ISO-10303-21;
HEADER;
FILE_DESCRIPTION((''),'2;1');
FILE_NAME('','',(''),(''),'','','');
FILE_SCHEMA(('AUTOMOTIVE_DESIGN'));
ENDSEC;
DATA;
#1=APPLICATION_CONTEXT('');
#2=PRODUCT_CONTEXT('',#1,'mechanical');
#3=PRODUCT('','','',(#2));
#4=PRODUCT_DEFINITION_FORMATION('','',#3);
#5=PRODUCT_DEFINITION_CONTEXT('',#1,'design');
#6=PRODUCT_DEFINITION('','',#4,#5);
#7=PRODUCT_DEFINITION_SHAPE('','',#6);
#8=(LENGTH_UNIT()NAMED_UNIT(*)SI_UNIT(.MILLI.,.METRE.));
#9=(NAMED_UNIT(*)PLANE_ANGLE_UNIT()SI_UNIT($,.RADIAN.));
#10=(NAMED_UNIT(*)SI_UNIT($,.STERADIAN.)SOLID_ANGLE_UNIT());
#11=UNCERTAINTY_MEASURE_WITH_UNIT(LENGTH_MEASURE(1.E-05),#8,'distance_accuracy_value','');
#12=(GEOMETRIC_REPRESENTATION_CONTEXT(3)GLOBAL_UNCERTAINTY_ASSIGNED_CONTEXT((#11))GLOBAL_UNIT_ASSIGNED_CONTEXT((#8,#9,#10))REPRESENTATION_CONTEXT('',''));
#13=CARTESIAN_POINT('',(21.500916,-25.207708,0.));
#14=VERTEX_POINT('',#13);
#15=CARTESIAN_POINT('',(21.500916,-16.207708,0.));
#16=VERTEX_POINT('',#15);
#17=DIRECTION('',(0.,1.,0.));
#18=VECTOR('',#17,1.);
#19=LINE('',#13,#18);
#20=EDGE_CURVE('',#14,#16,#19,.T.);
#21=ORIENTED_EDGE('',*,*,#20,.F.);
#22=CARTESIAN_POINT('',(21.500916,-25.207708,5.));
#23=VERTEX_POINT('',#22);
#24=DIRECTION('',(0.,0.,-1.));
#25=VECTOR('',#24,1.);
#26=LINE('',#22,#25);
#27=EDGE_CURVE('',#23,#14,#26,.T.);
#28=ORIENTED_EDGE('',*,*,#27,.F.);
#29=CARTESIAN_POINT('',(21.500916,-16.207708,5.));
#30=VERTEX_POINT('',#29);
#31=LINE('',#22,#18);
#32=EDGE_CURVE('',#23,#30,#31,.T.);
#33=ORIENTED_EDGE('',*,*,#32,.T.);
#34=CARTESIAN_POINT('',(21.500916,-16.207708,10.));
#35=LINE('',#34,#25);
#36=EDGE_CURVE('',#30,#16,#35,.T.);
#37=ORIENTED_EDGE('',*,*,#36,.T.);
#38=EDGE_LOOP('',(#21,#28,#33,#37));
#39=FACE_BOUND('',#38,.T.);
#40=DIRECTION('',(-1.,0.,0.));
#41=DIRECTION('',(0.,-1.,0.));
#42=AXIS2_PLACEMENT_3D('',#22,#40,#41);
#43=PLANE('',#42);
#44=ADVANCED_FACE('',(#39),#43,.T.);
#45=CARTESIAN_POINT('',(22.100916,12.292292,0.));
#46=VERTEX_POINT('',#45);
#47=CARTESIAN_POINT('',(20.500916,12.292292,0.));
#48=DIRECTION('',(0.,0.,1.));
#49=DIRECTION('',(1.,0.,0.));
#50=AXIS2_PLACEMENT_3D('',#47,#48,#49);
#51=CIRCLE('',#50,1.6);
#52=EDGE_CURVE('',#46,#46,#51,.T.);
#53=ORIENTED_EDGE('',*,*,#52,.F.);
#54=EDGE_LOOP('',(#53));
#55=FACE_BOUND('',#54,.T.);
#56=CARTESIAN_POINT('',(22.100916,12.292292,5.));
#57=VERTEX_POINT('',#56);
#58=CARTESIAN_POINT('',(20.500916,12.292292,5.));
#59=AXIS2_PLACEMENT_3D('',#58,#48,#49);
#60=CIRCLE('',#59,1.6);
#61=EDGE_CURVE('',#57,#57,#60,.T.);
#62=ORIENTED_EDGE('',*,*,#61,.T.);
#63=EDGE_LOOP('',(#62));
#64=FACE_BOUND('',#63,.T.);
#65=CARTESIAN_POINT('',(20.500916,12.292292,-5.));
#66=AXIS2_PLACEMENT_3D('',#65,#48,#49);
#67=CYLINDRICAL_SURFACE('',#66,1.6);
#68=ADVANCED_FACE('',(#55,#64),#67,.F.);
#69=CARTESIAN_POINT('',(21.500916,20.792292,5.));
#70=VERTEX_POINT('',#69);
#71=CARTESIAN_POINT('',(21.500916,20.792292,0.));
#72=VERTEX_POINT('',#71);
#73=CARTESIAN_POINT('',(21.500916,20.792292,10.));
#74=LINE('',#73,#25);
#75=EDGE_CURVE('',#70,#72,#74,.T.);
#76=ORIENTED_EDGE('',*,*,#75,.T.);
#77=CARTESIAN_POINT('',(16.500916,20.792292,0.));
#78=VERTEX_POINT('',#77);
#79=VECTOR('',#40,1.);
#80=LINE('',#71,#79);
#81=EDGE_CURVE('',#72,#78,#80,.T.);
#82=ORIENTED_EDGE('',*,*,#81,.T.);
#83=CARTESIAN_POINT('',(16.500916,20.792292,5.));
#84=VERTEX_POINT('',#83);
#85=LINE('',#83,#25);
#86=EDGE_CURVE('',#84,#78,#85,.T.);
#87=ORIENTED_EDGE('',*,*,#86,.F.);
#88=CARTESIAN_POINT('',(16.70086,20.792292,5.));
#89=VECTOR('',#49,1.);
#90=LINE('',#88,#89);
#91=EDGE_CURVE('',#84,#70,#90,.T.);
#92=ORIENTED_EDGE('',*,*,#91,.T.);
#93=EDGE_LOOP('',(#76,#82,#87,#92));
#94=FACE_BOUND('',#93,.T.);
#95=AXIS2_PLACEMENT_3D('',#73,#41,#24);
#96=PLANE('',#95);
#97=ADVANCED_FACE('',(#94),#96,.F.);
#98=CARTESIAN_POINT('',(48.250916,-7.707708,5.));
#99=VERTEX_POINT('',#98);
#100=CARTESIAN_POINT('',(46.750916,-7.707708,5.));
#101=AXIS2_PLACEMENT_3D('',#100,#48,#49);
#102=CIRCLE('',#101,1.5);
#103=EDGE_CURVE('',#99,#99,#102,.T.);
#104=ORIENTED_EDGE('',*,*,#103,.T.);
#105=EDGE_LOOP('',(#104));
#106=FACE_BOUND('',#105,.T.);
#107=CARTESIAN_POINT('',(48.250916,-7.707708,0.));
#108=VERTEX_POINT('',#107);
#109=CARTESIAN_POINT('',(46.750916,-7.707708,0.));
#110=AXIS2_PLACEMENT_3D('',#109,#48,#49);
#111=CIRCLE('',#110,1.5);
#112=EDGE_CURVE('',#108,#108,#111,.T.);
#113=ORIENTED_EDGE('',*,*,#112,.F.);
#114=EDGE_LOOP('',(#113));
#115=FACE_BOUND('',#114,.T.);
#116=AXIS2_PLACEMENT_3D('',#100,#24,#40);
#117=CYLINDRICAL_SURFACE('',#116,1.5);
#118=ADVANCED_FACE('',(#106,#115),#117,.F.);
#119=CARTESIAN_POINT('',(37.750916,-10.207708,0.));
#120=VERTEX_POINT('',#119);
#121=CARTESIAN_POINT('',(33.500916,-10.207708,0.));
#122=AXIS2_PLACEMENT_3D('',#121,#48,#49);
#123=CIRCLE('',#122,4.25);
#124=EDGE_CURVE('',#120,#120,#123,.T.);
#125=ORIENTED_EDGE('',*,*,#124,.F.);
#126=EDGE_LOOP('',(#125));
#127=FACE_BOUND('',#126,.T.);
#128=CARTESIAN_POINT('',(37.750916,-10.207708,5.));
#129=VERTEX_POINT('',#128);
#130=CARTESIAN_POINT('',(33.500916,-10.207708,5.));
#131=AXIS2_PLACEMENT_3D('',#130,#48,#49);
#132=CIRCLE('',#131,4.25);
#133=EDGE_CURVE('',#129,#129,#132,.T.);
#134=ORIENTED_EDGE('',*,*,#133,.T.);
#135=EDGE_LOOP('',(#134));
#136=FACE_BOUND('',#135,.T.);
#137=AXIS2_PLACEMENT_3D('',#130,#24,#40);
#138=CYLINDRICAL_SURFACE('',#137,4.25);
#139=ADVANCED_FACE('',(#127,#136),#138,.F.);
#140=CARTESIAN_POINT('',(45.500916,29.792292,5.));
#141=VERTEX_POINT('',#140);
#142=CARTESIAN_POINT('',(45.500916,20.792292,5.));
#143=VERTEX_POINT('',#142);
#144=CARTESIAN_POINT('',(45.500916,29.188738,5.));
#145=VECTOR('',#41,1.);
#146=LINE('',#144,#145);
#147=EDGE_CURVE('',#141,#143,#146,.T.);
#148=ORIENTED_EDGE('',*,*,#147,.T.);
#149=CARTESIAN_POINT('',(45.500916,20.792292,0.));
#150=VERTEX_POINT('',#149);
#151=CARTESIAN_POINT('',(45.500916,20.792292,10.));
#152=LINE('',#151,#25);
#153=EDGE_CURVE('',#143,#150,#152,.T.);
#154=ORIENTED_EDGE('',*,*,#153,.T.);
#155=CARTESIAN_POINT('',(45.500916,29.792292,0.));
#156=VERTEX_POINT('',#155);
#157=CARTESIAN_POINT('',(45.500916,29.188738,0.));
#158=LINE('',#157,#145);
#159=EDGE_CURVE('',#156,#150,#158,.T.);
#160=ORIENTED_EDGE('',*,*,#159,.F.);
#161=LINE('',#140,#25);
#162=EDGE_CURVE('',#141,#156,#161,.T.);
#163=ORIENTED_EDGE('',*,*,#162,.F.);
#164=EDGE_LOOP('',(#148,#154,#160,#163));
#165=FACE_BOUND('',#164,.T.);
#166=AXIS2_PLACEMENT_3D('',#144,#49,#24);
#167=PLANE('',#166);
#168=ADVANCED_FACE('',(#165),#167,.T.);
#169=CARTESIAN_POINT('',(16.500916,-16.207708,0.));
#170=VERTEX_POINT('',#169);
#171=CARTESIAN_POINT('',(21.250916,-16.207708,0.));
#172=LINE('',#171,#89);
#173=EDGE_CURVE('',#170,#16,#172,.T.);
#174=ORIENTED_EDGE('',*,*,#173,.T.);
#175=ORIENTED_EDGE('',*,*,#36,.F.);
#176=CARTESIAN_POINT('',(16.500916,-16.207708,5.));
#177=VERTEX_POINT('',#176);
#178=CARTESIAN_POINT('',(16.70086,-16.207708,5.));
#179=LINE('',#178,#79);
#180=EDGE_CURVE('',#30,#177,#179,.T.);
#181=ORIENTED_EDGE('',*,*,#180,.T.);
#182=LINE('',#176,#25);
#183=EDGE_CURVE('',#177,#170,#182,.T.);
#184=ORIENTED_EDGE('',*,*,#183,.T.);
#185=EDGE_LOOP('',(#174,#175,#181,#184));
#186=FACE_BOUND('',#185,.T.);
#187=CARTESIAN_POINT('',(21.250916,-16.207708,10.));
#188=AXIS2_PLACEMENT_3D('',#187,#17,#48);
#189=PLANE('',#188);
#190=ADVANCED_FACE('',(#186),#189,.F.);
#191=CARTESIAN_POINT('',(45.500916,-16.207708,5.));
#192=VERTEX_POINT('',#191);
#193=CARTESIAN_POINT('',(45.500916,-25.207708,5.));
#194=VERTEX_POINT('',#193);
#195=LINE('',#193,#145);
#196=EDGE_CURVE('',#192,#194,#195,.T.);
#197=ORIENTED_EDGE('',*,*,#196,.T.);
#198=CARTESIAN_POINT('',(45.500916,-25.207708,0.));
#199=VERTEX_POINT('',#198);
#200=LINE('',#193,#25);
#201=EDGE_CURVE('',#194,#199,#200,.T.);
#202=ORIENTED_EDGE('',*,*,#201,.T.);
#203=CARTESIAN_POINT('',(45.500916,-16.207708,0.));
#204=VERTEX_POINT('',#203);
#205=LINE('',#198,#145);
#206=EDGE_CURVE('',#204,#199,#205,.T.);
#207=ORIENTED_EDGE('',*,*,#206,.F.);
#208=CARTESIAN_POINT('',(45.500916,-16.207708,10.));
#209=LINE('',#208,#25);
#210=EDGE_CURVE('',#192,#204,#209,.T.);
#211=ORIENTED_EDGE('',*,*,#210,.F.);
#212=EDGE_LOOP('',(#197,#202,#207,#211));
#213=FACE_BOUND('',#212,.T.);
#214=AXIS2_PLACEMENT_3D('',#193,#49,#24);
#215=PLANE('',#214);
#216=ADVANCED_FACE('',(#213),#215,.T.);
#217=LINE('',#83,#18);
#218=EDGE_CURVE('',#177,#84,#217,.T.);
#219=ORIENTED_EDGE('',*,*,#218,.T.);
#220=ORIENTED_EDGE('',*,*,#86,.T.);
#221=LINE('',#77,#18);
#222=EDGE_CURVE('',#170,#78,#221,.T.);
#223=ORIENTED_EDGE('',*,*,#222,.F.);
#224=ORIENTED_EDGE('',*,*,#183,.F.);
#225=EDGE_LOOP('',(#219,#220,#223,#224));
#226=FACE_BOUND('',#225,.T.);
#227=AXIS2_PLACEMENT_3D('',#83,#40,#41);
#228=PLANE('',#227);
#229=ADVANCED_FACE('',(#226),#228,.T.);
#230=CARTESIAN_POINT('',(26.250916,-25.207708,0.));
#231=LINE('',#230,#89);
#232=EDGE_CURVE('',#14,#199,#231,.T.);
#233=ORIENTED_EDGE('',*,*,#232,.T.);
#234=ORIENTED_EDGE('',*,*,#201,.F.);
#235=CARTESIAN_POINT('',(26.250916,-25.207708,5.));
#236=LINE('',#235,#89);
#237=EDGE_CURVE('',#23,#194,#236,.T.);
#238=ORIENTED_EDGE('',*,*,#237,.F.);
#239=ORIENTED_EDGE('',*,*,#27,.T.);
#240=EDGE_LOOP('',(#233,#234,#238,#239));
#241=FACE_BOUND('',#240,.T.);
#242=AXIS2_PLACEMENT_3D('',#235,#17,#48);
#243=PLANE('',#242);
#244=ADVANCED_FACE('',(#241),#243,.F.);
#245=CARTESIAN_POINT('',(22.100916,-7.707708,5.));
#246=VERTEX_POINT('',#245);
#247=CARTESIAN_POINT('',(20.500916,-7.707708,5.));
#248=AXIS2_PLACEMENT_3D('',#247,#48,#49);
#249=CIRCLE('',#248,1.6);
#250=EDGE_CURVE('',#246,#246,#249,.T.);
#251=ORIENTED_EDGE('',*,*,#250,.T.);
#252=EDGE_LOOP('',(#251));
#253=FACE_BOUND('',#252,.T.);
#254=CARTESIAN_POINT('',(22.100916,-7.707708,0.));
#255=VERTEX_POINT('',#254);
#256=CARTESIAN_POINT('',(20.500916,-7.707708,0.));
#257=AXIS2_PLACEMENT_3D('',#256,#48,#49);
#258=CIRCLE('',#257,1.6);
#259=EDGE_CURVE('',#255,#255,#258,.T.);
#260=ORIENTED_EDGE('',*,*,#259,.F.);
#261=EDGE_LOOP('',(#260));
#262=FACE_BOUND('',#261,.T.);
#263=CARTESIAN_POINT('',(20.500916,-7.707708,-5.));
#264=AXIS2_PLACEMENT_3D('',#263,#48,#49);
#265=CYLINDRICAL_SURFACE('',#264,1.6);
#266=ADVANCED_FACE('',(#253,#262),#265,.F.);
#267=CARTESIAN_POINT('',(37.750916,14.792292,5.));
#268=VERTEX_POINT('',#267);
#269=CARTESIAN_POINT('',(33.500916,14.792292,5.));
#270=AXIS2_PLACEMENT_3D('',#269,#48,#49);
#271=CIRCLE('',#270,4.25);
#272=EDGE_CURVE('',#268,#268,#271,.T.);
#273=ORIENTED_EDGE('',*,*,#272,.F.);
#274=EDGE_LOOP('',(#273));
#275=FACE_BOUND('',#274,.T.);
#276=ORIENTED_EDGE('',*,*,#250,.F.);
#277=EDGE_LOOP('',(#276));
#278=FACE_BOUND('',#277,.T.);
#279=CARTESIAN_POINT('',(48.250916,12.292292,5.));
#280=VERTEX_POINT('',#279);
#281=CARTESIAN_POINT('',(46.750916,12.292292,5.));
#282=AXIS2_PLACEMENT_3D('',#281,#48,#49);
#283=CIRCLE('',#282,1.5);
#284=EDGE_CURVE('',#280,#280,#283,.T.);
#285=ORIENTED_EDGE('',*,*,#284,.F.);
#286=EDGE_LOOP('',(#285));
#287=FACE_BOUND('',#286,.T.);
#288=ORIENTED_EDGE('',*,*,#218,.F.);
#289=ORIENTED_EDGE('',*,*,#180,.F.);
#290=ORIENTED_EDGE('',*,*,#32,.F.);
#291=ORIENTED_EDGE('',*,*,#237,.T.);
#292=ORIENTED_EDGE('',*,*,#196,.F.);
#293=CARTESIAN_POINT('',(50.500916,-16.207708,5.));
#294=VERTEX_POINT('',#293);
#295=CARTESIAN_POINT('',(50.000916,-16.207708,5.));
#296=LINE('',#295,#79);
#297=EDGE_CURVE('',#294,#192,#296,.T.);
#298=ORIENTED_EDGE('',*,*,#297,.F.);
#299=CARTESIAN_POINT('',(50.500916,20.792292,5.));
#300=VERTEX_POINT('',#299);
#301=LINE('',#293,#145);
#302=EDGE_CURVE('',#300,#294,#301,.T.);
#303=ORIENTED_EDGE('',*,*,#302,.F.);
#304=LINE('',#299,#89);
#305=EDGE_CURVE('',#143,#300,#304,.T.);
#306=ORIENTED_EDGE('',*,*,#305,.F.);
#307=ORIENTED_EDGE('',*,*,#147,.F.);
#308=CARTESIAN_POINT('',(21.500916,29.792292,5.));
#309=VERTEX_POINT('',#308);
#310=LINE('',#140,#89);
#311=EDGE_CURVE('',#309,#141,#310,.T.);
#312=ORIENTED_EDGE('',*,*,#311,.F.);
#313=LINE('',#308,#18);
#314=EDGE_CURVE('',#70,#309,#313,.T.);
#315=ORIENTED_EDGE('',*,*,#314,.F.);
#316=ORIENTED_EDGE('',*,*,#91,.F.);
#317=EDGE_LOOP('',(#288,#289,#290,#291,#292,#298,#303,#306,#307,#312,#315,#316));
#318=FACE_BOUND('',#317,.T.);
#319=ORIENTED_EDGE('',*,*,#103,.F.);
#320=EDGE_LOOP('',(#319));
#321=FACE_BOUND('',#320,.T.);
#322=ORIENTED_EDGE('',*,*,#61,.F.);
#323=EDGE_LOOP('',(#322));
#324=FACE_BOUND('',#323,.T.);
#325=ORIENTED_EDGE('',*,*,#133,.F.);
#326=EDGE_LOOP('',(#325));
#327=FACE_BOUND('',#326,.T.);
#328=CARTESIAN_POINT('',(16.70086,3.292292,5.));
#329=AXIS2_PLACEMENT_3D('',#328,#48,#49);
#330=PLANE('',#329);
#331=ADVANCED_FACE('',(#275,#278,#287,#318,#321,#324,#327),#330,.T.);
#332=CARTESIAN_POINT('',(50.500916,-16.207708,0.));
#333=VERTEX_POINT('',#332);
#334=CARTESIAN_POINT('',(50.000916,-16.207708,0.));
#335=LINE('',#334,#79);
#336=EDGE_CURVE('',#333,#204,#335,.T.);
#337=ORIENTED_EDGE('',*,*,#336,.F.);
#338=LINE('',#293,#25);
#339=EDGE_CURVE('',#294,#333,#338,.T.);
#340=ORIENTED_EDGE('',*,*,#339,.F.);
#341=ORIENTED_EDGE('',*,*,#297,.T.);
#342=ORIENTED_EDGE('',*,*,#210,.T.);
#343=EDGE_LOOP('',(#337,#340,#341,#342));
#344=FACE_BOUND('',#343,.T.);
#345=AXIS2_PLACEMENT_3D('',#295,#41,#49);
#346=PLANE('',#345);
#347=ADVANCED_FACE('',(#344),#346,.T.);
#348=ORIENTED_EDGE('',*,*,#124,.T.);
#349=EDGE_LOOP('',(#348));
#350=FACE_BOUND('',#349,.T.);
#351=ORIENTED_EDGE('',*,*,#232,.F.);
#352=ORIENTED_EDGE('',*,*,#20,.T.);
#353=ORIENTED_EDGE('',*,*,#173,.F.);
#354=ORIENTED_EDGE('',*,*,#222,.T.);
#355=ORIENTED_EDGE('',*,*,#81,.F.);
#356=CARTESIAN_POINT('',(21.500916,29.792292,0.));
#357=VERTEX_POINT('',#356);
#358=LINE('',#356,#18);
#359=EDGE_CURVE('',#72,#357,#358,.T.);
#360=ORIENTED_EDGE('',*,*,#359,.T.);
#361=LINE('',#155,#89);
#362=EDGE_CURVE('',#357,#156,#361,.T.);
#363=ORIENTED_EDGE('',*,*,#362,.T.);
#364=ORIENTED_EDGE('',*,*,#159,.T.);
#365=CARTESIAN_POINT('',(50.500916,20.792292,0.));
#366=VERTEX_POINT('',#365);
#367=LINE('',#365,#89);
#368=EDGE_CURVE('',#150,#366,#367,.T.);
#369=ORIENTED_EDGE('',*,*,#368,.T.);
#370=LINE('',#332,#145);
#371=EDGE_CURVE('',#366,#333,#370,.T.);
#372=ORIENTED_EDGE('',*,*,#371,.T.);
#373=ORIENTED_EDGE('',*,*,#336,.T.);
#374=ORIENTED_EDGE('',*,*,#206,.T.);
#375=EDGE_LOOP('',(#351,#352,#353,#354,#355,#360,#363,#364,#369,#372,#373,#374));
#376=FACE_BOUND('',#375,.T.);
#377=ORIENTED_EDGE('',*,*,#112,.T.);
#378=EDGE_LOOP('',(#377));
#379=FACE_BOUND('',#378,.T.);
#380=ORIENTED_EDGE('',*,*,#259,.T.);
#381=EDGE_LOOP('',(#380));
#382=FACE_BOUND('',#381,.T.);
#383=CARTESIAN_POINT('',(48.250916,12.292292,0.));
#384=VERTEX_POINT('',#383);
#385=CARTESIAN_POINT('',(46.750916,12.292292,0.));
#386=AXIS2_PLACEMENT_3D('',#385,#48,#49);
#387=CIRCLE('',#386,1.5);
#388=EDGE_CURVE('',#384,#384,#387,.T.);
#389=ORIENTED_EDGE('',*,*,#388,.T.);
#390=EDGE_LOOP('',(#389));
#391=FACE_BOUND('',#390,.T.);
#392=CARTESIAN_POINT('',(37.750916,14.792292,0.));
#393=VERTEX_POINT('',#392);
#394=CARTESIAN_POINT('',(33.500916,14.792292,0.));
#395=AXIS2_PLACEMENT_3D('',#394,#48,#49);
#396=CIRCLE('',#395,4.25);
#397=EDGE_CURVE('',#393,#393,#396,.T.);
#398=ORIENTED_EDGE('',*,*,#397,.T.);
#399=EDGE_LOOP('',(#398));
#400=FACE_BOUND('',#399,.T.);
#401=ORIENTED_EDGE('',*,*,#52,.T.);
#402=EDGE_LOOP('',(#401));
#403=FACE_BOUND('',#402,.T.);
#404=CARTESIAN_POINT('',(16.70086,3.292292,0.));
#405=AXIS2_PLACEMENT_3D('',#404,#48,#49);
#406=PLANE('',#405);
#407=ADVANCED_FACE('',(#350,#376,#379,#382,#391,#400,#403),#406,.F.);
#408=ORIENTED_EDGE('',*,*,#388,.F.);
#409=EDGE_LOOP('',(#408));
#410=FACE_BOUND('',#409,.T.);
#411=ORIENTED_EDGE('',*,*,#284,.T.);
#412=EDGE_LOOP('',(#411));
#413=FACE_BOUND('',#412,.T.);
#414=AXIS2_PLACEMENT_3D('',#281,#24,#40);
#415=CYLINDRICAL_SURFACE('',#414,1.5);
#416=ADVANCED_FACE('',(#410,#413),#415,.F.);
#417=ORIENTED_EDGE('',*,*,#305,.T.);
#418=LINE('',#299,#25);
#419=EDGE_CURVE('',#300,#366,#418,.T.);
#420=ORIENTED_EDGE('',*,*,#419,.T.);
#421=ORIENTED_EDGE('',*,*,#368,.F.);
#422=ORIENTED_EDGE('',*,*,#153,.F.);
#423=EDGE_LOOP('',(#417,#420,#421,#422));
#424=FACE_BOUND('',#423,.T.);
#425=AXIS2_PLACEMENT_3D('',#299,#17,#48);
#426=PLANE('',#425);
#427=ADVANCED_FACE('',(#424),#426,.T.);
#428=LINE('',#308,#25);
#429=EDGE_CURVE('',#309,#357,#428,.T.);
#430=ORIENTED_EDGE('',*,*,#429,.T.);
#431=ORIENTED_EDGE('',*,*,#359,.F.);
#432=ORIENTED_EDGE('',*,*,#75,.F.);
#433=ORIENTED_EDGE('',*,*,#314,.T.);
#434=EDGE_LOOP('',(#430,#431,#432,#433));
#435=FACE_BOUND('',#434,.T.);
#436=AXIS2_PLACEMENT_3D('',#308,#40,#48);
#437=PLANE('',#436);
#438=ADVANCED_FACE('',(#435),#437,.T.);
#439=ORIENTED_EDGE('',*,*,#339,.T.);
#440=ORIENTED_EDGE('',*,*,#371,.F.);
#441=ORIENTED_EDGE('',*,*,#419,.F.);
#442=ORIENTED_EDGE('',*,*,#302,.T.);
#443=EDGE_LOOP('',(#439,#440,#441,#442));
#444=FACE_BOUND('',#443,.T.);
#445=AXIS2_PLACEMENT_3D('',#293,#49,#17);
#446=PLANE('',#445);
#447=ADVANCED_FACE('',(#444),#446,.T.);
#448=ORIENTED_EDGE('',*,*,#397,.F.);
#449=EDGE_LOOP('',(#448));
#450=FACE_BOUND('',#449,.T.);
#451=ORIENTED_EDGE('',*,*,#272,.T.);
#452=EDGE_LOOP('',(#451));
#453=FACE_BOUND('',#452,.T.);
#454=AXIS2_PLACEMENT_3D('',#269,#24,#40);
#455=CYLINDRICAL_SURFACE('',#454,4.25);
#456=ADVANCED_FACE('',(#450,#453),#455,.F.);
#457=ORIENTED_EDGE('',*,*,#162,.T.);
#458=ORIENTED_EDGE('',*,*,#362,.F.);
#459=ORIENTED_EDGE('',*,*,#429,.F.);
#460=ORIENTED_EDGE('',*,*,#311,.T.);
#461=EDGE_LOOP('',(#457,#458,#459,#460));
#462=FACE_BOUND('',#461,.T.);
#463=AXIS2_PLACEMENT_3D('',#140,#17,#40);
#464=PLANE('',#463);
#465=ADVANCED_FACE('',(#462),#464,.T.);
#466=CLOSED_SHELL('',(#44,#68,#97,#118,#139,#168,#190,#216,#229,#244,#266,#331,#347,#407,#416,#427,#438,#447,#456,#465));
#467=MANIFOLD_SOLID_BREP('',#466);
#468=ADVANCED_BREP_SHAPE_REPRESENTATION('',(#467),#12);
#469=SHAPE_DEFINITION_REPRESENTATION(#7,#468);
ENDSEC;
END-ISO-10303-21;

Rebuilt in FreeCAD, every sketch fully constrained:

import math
import FreeCAD as App
import Part
import Sketcher

V = App.Vector
Q = App.Units.Quantity

doc = App.newDocument("Part")
body = doc.addObject("PartDesign::Body", "Body")

sketch1 = body.newObject("Sketcher::SketchObject", "Sketch")
sketch1.AttachmentSupport = (doc.getObject("XY_Plane"), [""])
sketch1.MapMode = "FlatFace"
sketch1.addGeometry(Part.LineSegment(V(45.250916, -25.207708, 0), V(50.000916, -20.457708, 0)), False)
sketch1.addGeometry(Part.LineSegment(V(50.000916, -20.457708, 0), V(50.000916, 24.688738, 0)), False)
sketch1.addGeometry(Part.LineSegment(V(50.000916, 24.688738, 0), V(45.147363, 29.542292, 0)), False)
sketch1.addGeometry(Part.LineSegment(V(45.147363, 29.542292, 0), V(26.354469, 29.542292, 0)), False)
sketch1.addGeometry(Part.LineSegment(V(26.354469, 29.542292, 0), V(21.250916, 24.438738, 0)), False)
sketch1.addGeometry(Part.LineSegment(V(21.250916, 24.438738, 0), V(21.250916, 18.042292, 0)), False)
sketch1.addGeometry(Part.LineSegment(V(21.250916, 18.042292, 0), V(16.70086, 18.042292, 0)), False)
sketch1.addGeometry(Part.ArcOfCircle(Part.Circle(V(16.70086, 3.292292, 0), V(0, 0, 1), 14.75), math.radians(90), math.radians(119.926435)), False)
sketch1.addGeometry(Part.ArcOfCircle(Part.Circle(V(-5.749084, 42.292292, 0), V(0, 0, 1), 30.25), math.radians(-89.526476), math.radians(-60.073565)), False)
sketch1.addGeometry(Part.LineSegment(V(-5.499084, 12.043325, 0), V(-5.499084, 12.039086, 0)), False)
sketch1.addGeometry(Part.ArcOfCircle(Part.Circle(V(-5.749084, 2.292292, 0), V(0, 0, 1), 9.75), math.radians(88.530716), math.radians(271.469284)), False)
sketch1.addGeometry(Part.LineSegment(V(-5.499084, -7.454503, 0), V(-5.499084, -7.458741, 0)), False)
sketch1.addGeometry(Part.ArcOfCircle(Part.Circle(V(-5.749084, -37.707708, 0), V(0, 0, 1), 30.25), math.radians(60.073565), math.radians(89.526476)), False)
sketch1.addGeometry(Part.ArcOfCircle(Part.Circle(V(16.70086, 1.292292, 0), V(0, 0, 1), 14.75), math.radians(-119.926435), math.radians(-90)), False)
sketch1.addGeometry(Part.LineSegment(V(16.70086, -13.457708, 0), V(21.250916, -13.457708, 0)), False)
sketch1.addGeometry(Part.LineSegment(V(21.250916, -13.457708, 0), V(21.250916, -20.207708, 0)), False)
sketch1.addGeometry(Part.LineSegment(V(21.250916, -20.207708, 0), V(26.250916, -25.207708, 0)), False)
sketch1.addGeometry(Part.LineSegment(V(26.250916, -25.207708, 0), V(45.250916, -25.207708, 0)), False)
sketch1.addGeometry(Part.Circle(V(-5.686629, -4.707708, 0), V(0, 0, 1), 1), False)
sketch1.addGeometry(Part.Circle(V(-12.749084, 2.229837, 0), V(0, 0, 1), 1), False)
sketch1.addGeometry(Part.Circle(V(19.250916, -7.707708, 0), V(0, 0, 1), 1.5), False)
sketch1.addGeometry(Part.Circle(V(33.500916, -10.207708, 0), V(0, 0, 1), 4.25), False)
sketch1.addGeometry(Part.Circle(V(46.750916, -7.707708, 0), V(0, 0, 1), 1.5), False)
sketch1.addGeometry(Part.Circle(V(-5.749084, 2.292292, 0), V(0, 0, 1), 5), False)
sketch1.addGeometry(Part.Circle(V(1.250916, 2.354746, 0), V(0, 0, 1), 1), False)
sketch1.addGeometry(Part.Circle(V(-5.811539, 9.292292, 0), V(0, 0, 1), 1), False)
sketch1.addGeometry(Part.Circle(V(19.250916, 12.292292, 0), V(0, 0, 1), 1.5), False)
sketch1.addGeometry(Part.Circle(V(33.500916, 14.792292, 0), V(0, 0, 1), 4.25), False)
sketch1.addGeometry(Part.Circle(V(46.750916, 12.292292, 0), V(0, 0, 1), 1.5), False)
sketch1.addConstraint(Sketcher.Constraint("Coincident", 0, 2, 1, 1))
sketch1.addConstraint(Sketcher.Constraint("Coincident", 1, 2, 2, 1))
sketch1.addConstraint(Sketcher.Constraint("Coincident", 2, 2, 3, 1))
sketch1.addConstraint(Sketcher.Constraint("Coincident", 3, 2, 4, 1))
sketch1.addConstraint(Sketcher.Constraint("Coincident", 4, 2, 5, 1))
sketch1.addConstraint(Sketcher.Constraint("Coincident", 5, 2, 6, 1))
sketch1.addConstraint(Sketcher.Constraint("Tangent", 6, 2, 7, 1))
sketch1.addConstraint(Sketcher.Constraint("Tangent", 7, 2, 8, 2))
sketch1.addConstraint(Sketcher.Constraint("Coincident", 8, 1, 9, 1))
sketch1.addConstraint(Sketcher.Constraint("Coincident", 9, 2, 10, 1))
sketch1.addConstraint(Sketcher.Constraint("Coincident", 10, 2, 11, 1))
sketch1.addConstraint(Sketcher.Constraint("Coincident", 11, 2, 12, 2))
sketch1.addConstraint(Sketcher.Constraint("Tangent", 12, 1, 13, 1))
sketch1.addConstraint(Sketcher.Constraint("Tangent", 13, 2, 14, 1))
sketch1.addConstraint(Sketcher.Constraint("Coincident", 14, 2, 15, 1))
sketch1.addConstraint(Sketcher.Constraint("Coincident", 15, 2, 16, 1))
sketch1.addConstraint(Sketcher.Constraint("Coincident", 16, 2, 17, 1))
sketch1.addConstraint(Sketcher.Constraint("Coincident", 17, 2, 0, 1))
sketch1.addConstraint(Sketcher.Constraint("Vertical", 1))
sketch1.addConstraint(Sketcher.Constraint("Horizontal", 3))
sketch1.addConstraint(Sketcher.Constraint("Vertical", 5))
sketch1.addConstraint(Sketcher.Constraint("Horizontal", 6))
sketch1.addConstraint(Sketcher.Constraint("Vertical", 9))
sketch1.addConstraint(Sketcher.Constraint("Vertical", 11))
sketch1.addConstraint(Sketcher.Constraint("Horizontal", 14))
sketch1.addConstraint(Sketcher.Constraint("Vertical", 15))
sketch1.addConstraint(Sketcher.Constraint("Horizontal", 17))
sketch1.addConstraint(Sketcher.Constraint("Coincident", 23, 3, 10, 3))
sketch1.addConstraint(Sketcher.Constraint("Equal", 8, 12))
sketch1.addConstraint(Sketcher.Constraint("Equal", 7, 13))
sketch1.addConstraint(Sketcher.Constraint("Equal", 18, 19))
sketch1.addConstraint(Sketcher.Constraint("Equal", 20, 22))
sketch1.addConstraint(Sketcher.Constraint("Equal", 19, 24))
sketch1.addConstraint(Sketcher.Constraint("Equal", 24, 25))
sketch1.addConstraint(Sketcher.Constraint("Equal", 22, 26))
sketch1.addConstraint(Sketcher.Constraint("Equal", 21, 27))
sketch1.addConstraint(Sketcher.Constraint("Equal", 26, 28))
sketch1.addConstraint(Sketcher.Constraint("Perpendicular", 0, 2))
sketch1.addConstraint(Sketcher.Constraint("Perpendicular", 2, 4))
sketch1.addConstraint(Sketcher.Constraint("Perpendicular", 4, 16))
sketch1.addConstraint(Sketcher.Constraint("Horizontal", 20, 3, 22, 3))
sketch1.addConstraint(Sketcher.Constraint("Horizontal", 26, 3, 28, 3))
sketch1.addConstraint(Sketcher.Constraint("Vertical", 8, 3, 10, 3))
sketch1.addConstraint(Sketcher.Constraint("Vertical", 10, 3, 12, 3))
sketch1.addConstraint(Sketcher.Constraint("Vertical", 7, 3, 13, 3))
sketch1.addConstraint(Sketcher.Constraint("Vertical", 20, 3, 26, 3))
sketch1.addConstraint(Sketcher.Constraint("Vertical", 21, 3, 27, 3))
sketch1.addConstraint(Sketcher.Constraint("Vertical", 22, 3, 28, 3))
sketch1.addConstraint(Sketcher.Constraint("Vertical", 9, 2, 10, 2))
sketch1.addConstraint(Sketcher.Constraint("Vertical", 5, 2, 14, 2))
sketch1.addConstraint(Sketcher.Constraint("Equal", 9, 11))
sketch1.addConstraint(Sketcher.Constraint("Diameter", 18, Q("2 mm")))
sketch1.addConstraint(Sketcher.Constraint("Diameter", 20, Q("3 mm")))
sketch1.addConstraint(Sketcher.Constraint("Diameter", 23, Q("10 mm")))
sketch1.addConstraint(Sketcher.Constraint("Diameter", 21, Q("8.5 mm")))
sketch1.addConstraint(Sketcher.Constraint("DistanceX", 17, 1, 17, 2, Q("19 mm")))
sketch1.addConstraint(Sketcher.Constraint("Angle", 0, Q("45 deg")))
sketch1.addConstraint(Sketcher.Constraint("Radius", 7, Q("14.75 mm")))
sketch1.addConstraint(Sketcher.Constraint("Radius", 8, Q("30.25 mm")))
sketch1.addConstraint(Sketcher.Constraint("Radius", 10, Q("9.75 mm")))
sketch1.addConstraint(Sketcher.Constraint("DistanceY", 7, 3, 8, 3, Q("39 mm")))
sketch1.addConstraint(Sketcher.Constraint("DistanceY", 10, 3, 7, 3, Q("1 mm")))
sketch1.addConstraint(Sketcher.Constraint("DistanceY", 18, 3, 10, 3, Q("7 mm")))
sketch1.addConstraint(Sketcher.Constraint("DistanceX", 19, 3, 10, 3, Q("7 mm")))
sketch1.addConstraint(Sketcher.Constraint("DistanceY", 20, 3, 13, 3, Q("9 mm")))
sketch1.addConstraint(Sketcher.Constraint("DistanceX", 10, 3, 20, 3, Q("25 mm")))
sketch1.addConstraint(Sketcher.Constraint("DistanceX", 10, 3, 24, 3, Q("7 mm")))
sketch1.addConstraint(Sketcher.Constraint("DistanceY", 10, 3, 25, 3, Q("7 mm")))
sketch1.addConstraint(Sketcher.Constraint("DistanceY", 7, 3, 26, 3, Q("9 mm")))
sketch1.addConstraint(Sketcher.Constraint("DistanceY", 21, 3, 27, 3, Q("25 mm")))
sketch1.addConstraint(Sketcher.Constraint("DistanceX", 26, 3, 4, 2, Q("2 mm")))
sketch1.addConstraint(Sketcher.Constraint("DistanceY", 15, 2, 21, 3, Q("10 mm")))
sketch1.addConstraint(Sketcher.Constraint("DistanceX", 15, 2, 16, 2, Q("5 mm")))
sketch1.addConstraint(Sketcher.Constraint("DistanceY", 15, 2, 15, 1, Q("6.75 mm")))
sketch1.addConstraint(Sketcher.Constraint("DistanceX", 20, 3, 22, 3, Q("27.5 mm")))
sketch1.addConstraint(Sketcher.Constraint("DistanceX", 21, 3, 0, 2, Q("16.5 mm")))
sketch1.addConstraint(Sketcher.Constraint("DistanceY", 5, 2, 3, 2, Q("11.5 mm")))
sketch1.addConstraint(Sketcher.Constraint("DistanceX", 20, 3, 21, 3, Q("14.25 mm")))
sketch1.addConstraint(Sketcher.Constraint("DistanceX", 10, 3, 8, 1, Q("0.25 mm")))
sketch1.addConstraint(Sketcher.Constraint("Distance", 2, Q("6.863961 mm")))
sketch1.addConstraint(Sketcher.Constraint("DistanceX", 3, 2, 3, 1, Q("18.792893 mm")))
sketch1.addConstraint(Sketcher.Constraint("DistanceX", -1, 1, 7, 3, Q("16.70086 mm")))
sketch1.addConstraint(Sketcher.Constraint("DistanceY", -1, 1, 7, 3, Q("3.292292 mm")))
sketch1.addConstraint(Sketcher.Constraint("DistanceX", 18, 3, -1, 1, Q("5.686629 mm")))
sketch1.addConstraint(Sketcher.Constraint("DistanceX", 25, 3, -1, 1, Q("5.811539 mm")))
sketch1.addConstraint(Sketcher.Constraint("DistanceY", 19, 3, 24, 3, Q("0.124909 mm")))
sketch1.addConstraint(Sketcher.Constraint("DistanceY", 24, 3, 8, 1, Q("9.688579 mm")))
pad1 = body.newObject("PartDesign::Pad", "Pad")
pad1.Profile = sketch1
pad1.Length = 5

sketch2 = body.newObject("Sketcher::SketchObject", "Sketch001")
sketch2.AttachmentSupport = (doc.getObject("XY_Plane"), [""])
sketch2.MapMode = "FlatFace"
sketch2.addGeometry(Part.LineSegment(V(26.25, -25.21, 0), V(21.5, -25.21, 0)), False)
sketch2.addGeometry(Part.LineSegment(V(21.5, -25.21, 0), V(21.5, -20.46, 0)), False)
sketch2.addGeometry(Part.LineSegment(V(21.5, -20.46, 0), V(26.25, -25.21, 0)), False)
sketch2.addGeometry(Part.LineSegment(V(45.5, -25.21, 0), V(45.25, -25.21, 0)), False)
sketch2.addGeometry(Part.LineSegment(V(45.25, -25.21, 0), V(45.5, -24.96, 0)), False)
sketch2.addGeometry(Part.LineSegment(V(45.5, -24.96, 0), V(45.5, -25.21, 0)), False)
sketch2.addGeometry(Part.LineSegment(V(45.5, 29.79, 0), V(45.5, 29.19, 0)), False)
sketch2.addGeometry(Part.LineSegment(V(45.5, 29.19, 0), V(45.15, 29.54, 0)), False)
sketch2.addGeometry(Part.LineSegment(V(45.15, 29.54, 0), V(26.35, 29.54, 0)), False)
sketch2.addGeometry(Part.LineSegment(V(26.35, 29.54, 0), V(21.5, 24.69, 0)), False)
sketch2.addGeometry(Part.LineSegment(V(21.5, 24.69, 0), V(21.5, 29.79, 0)), False)
sketch2.addGeometry(Part.LineSegment(V(21.5, 29.79, 0), V(45.5, 29.79, 0)), False)
sketch2.addGeometry(Part.LineSegment(V(50.5, 20.79, 0), V(50.5, -16.21, 0)), False)
sketch2.addGeometry(Part.LineSegment(V(50.5, -16.21, 0), V(50, -16.21, 0)), False)
sketch2.addGeometry(Part.LineSegment(V(50, -16.21, 0), V(50, 20.79, 0)), False)
sketch2.addGeometry(Part.LineSegment(V(50, 20.79, 0), V(50.5, 20.79, 0)), False)
sketch2.addConstraint(Sketcher.Constraint("Coincident", 0, 2, 1, 1))
sketch2.addConstraint(Sketcher.Constraint("Coincident", 1, 2, 2, 1))
sketch2.addConstraint(Sketcher.Constraint("Coincident", 2, 2, 0, 1))
sketch2.addConstraint(Sketcher.Constraint("Coincident", 3, 2, 4, 1))
sketch2.addConstraint(Sketcher.Constraint("Coincident", 4, 2, 5, 1))
sketch2.addConstraint(Sketcher.Constraint("Coincident", 5, 2, 3, 1))
sketch2.addConstraint(Sketcher.Constraint("Coincident", 6, 2, 7, 1))
sketch2.addConstraint(Sketcher.Constraint("Coincident", 7, 2, 8, 1))
sketch2.addConstraint(Sketcher.Constraint("Coincident", 8, 2, 9, 1))
sketch2.addConstraint(Sketcher.Constraint("Coincident", 9, 2, 10, 1))
sketch2.addConstraint(Sketcher.Constraint("Coincident", 10, 2, 11, 1))
sketch2.addConstraint(Sketcher.Constraint("Coincident", 11, 2, 6, 1))
sketch2.addConstraint(Sketcher.Constraint("Coincident", 12, 2, 13, 1))
sketch2.addConstraint(Sketcher.Constraint("Coincident", 13, 2, 14, 1))
sketch2.addConstraint(Sketcher.Constraint("Coincident", 14, 2, 15, 1))
sketch2.addConstraint(Sketcher.Constraint("Coincident", 15, 2, 12, 1))
sketch2.addConstraint(Sketcher.Constraint("Horizontal", 0))
sketch2.addConstraint(Sketcher.Constraint("Vertical", 1))
sketch2.addConstraint(Sketcher.Constraint("Horizontal", 3))
sketch2.addConstraint(Sketcher.Constraint("Vertical", 5))
sketch2.addConstraint(Sketcher.Constraint("Vertical", 6))
sketch2.addConstraint(Sketcher.Constraint("Horizontal", 8))
sketch2.addConstraint(Sketcher.Constraint("Vertical", 10))
sketch2.addConstraint(Sketcher.Constraint("Horizontal", 11))
sketch2.addConstraint(Sketcher.Constraint("Vertical", 12))
sketch2.addConstraint(Sketcher.Constraint("Horizontal", 13))
sketch2.addConstraint(Sketcher.Constraint("Vertical", 14))
sketch2.addConstraint(Sketcher.Constraint("Horizontal", 15))
sketch2.addConstraint(Sketcher.Constraint("Perpendicular", 2, 4))
sketch2.addConstraint(Sketcher.Constraint("Perpendicular", 4, 7))
sketch2.addConstraint(Sketcher.Constraint("Perpendicular", 7, 9))
sketch2.addConstraint(Sketcher.Constraint("Horizontal", 2, 2, 3, 2))
sketch2.addConstraint(Sketcher.Constraint("Vertical", 5, 2, 6, 2))
sketch2.addConstraint(Sketcher.Constraint("Vertical", 1, 2, 9, 2))
sketch2.addConstraint(Sketcher.Constraint("Equal", 0, 1))
sketch2.addConstraint(Sketcher.Constraint("DistanceX", 11, 1, 11, 2, Q("24 mm")))
sketch2.addConstraint(Sketcher.Constraint("DistanceY", 12, 2, 12, 1, Q("37 mm")))
sketch2.addConstraint(Sketcher.Constraint("DistanceX", 13, 2, 13, 1, Q("0.5 mm")))
sketch2.addConstraint(Sketcher.Constraint("DistanceX", 2, 2, 3, 2, Q("19 mm")))
sketch2.addConstraint(Sketcher.Constraint("DistanceY", 1, 2, 7, 2, Q("50 mm")))
sketch2.addConstraint(Sketcher.Constraint("DistanceX", 4, 2, 12, 2, Q("5 mm")))
sketch2.addConstraint(Sketcher.Constraint("DistanceY", 5, 2, 12, 2, Q("9 mm")))
sketch2.addConstraint(Sketcher.Constraint("DistanceY", 14, 2, 11, 2, Q("9 mm")))
sketch2.addConstraint(Sketcher.Constraint("Distance", 7, Q("0.5 mm")))
sketch2.addConstraint(Sketcher.Constraint("DistanceX", 0, 2, 0, 1, Q("4.75 mm")))
sketch2.addConstraint(Sketcher.Constraint("DistanceY", 9, 2, 6, 2, Q("4.5 mm")))
sketch2.addConstraint(Sketcher.Constraint("DistanceY", 0, 2, -1, 1, Q("25.207708 mm")))
sketch2.addConstraint(Sketcher.Constraint("DistanceX", -1, 1, 8, 2, Q("26.354469 mm")))
pad2 = body.newObject("PartDesign::Pad", "Pad001")
pad2.Profile = sketch2
pad2.Length = 5

sketch3 = body.newObject("Sketcher::SketchObject", "Sketch002")
sketch3.AttachmentSupport = (doc.getObject("XY_Plane"), [""])
sketch3.MapMode = "FlatFace"
sketch3.addGeometry(Part.LineSegment(V(45.5, -16.21, 0), V(50, -16.21, 0)), False)
sketch3.addGeometry(Part.LineSegment(V(50, -16.21, 0), V(50, -20.46, 0)), False)
sketch3.addGeometry(Part.LineSegment(V(50, -20.46, 0), V(45.5, -25.21, 0)), False)
sketch3.addGeometry(Part.LineSegment(V(45.5, -25.21, 0), V(45.5, -16.21, 0)), False)
sketch3.addGeometry(Part.LineSegment(V(50.5, 20.79, 0), V(45.5, 20.79, 0)), False)
sketch3.addGeometry(Part.LineSegment(V(45.5, 20.79, 0), V(45.5, 29.19, 0)), False)
sketch3.addGeometry(Part.LineSegment(V(45.5, 29.19, 0), V(50, 24.69, 0)), False)
sketch3.addGeometry(Part.LineSegment(V(50, 24.69, 0), V(50.5, 20.79, 0)), False)
sketch3.addGeometry(Part.LineSegment(V(21.5, -16.21, 0), V(21.5, -20.46, 0)), False)
sketch3.addGeometry(Part.LineSegment(V(21.5, -20.46, 0), V(21.25, -20.21, 0)), False)
sketch3.addGeometry(Part.LineSegment(V(21.25, -20.21, 0), V(21.25, -16.21, 0)), False)
sketch3.addGeometry(Part.LineSegment(V(21.25, -16.21, 0), V(21.5, -16.21, 0)), False)
sketch3.addGeometry(Part.LineSegment(V(21.5, 20.79, 0), V(21.25, 20.79, 0)), False)
sketch3.addGeometry(Part.LineSegment(V(21.25, 20.79, 0), V(21.25, 24.44, 0)), False)
sketch3.addGeometry(Part.LineSegment(V(21.25, 24.44, 0), V(21.5, 24.69, 0)), False)
sketch3.addGeometry(Part.LineSegment(V(21.5, 24.69, 0), V(21.5, 20.79, 0)), False)
sketch3.addConstraint(Sketcher.Constraint("Coincident", 0, 2, 1, 1))
sketch3.addConstraint(Sketcher.Constraint("Coincident", 1, 2, 2, 1))
sketch3.addConstraint(Sketcher.Constraint("Coincident", 2, 2, 3, 1))
sketch3.addConstraint(Sketcher.Constraint("Coincident", 3, 2, 0, 1))
sketch3.addConstraint(Sketcher.Constraint("Coincident", 4, 2, 5, 1))
sketch3.addConstraint(Sketcher.Constraint("Coincident", 5, 2, 6, 1))
sketch3.addConstraint(Sketcher.Constraint("Coincident", 6, 2, 7, 1))
sketch3.addConstraint(Sketcher.Constraint("Coincident", 7, 2, 4, 1))
sketch3.addConstraint(Sketcher.Constraint("Coincident", 8, 2, 9, 1))
sketch3.addConstraint(Sketcher.Constraint("Coincident", 9, 2, 10, 1))
sketch3.addConstraint(Sketcher.Constraint("Coincident", 10, 2, 11, 1))
sketch3.addConstraint(Sketcher.Constraint("Coincident", 11, 2, 8, 1))
sketch3.addConstraint(Sketcher.Constraint("Coincident", 12, 2, 13, 1))
sketch3.addConstraint(Sketcher.Constraint("Coincident", 13, 2, 14, 1))
sketch3.addConstraint(Sketcher.Constraint("Coincident", 14, 2, 15, 1))
sketch3.addConstraint(Sketcher.Constraint("Coincident", 15, 2, 12, 1))
sketch3.addConstraint(Sketcher.Constraint("Horizontal", 0))
sketch3.addConstraint(Sketcher.Constraint("Vertical", 1))
sketch3.addConstraint(Sketcher.Constraint("Vertical", 3))
sketch3.addConstraint(Sketcher.Constraint("Horizontal", 4))
sketch3.addConstraint(Sketcher.Constraint("Vertical", 5))
sketch3.addConstraint(Sketcher.Constraint("Vertical", 8))
sketch3.addConstraint(Sketcher.Constraint("Vertical", 10))
sketch3.addConstraint(Sketcher.Constraint("Horizontal", 11))
sketch3.addConstraint(Sketcher.Constraint("Horizontal", 12))
sketch3.addConstraint(Sketcher.Constraint("Vertical", 13))
sketch3.addConstraint(Sketcher.Constraint("Vertical", 15))
sketch3.addConstraint(Sketcher.Constraint("Parallel", 6, 9))
sketch3.addConstraint(Sketcher.Constraint("Perpendicular", 9, 14))
sketch3.addConstraint(Sketcher.Constraint("Horizontal", 1, 2, 8, 2))
sketch3.addConstraint(Sketcher.Constraint("Horizontal", 3, 2, 10, 2))
sketch3.addConstraint(Sketcher.Constraint("Horizontal", 7, 2, 12, 2))
sketch3.addConstraint(Sketcher.Constraint("Horizontal", 6, 2, 14, 2))
sketch3.addConstraint(Sketcher.Constraint("Vertical", 3, 2, 4, 2))
sketch3.addConstraint(Sketcher.Constraint("Vertical", 1, 2, 6, 2))
sketch3.addConstraint(Sketcher.Constraint("Vertical", 10, 2, 12, 2))
sketch3.addConstraint(Sketcher.Constraint("Vertical", 11, 2, 14, 2))
sketch3.addConstraint(Sketcher.Constraint("Equal", 9, 14))
sketch3.addConstraint(Sketcher.Constraint("DistanceX", 4, 2, 4, 1, Q("5 mm")))
sketch3.addConstraint(Sketcher.Constraint("DistanceY", 3, 1, 3, 2, Q("9 mm")))
sketch3.addConstraint(Sketcher.Constraint("DistanceY", 10, 1, 10, 2, Q("4 mm")))
sketch3.addConstraint(Sketcher.Constraint("DistanceX", 0, 1, 0, 2, Q("4.5 mm")))
sketch3.addConstraint(Sketcher.Constraint("DistanceY", 3, 2, 4, 2, Q("37 mm")))
sketch3.addConstraint(Sketcher.Constraint("DistanceX", 8, 2, 3, 2, Q("24 mm")))
sketch3.addConstraint(Sketcher.Constraint("DistanceX", 11, 1, 11, 2, Q("0.25 mm")))
sketch3.addConstraint(Sketcher.Constraint("DistanceY", 5, 1, 5, 2, Q("8.396447 mm")))
sketch3.addConstraint(Sketcher.Constraint("DistanceY", 0, 2, -1, 1, Q("16.207708 mm")))
sketch3.addConstraint(Sketcher.Constraint("DistanceX", -1, 1, 0, 2, Q("50.000916 mm")))
pocket1 = body.newObject("PartDesign::Pocket", "Pocket")
pocket1.Profile = sketch3
pocket1.Length = 10
pocket1.Reversed = True

sketch4 = body.newObject("Sketcher::SketchObject", "Sketch003")
sketch4.AttachmentSupport = (doc.getObject("XY_Plane"), [""])
sketch4.MapMode = "FlatFace"
sketch4.addGeometry(Part.LineSegment(V(16.5, 20.79, 0), V(21.25, 20.79, 0)), False)
sketch4.addGeometry(Part.LineSegment(V(21.25, 20.79, 0), V(21.25, 18.04, 0)), False)
sketch4.addGeometry(Part.LineSegment(V(21.25, 18.04, 0), V(16.7, 18.04, 0)), False)
sketch4.addGeometry(Part.ArcOfCircle(Part.Circle(V(16.7, 3.29, 0), V(0, 0, 1), 14.75), math.radians(90), math.radians(90.78)), False)
sketch4.addGeometry(Part.LineSegment(V(16.5, 18.04, 0), V(16.5, 20.79, 0)), False)
sketch4.addGeometry(Part.LineSegment(V(16.5, -16.21, 0), V(16.5, -13.46, 0)), False)
sketch4.addGeometry(Part.ArcOfCircle(Part.Circle(V(16.7, 1.29, 0), V(0, 0, 1), 14.75), math.radians(-90.78), math.radians(-90)), False)
sketch4.addGeometry(Part.LineSegment(V(16.7, -13.46, 0), V(21.25, -13.46, 0)), False)
sketch4.addGeometry(Part.LineSegment(V(21.25, -13.46, 0), V(21.25, -16.21, 0)), False)
sketch4.addGeometry(Part.LineSegment(V(21.25, -16.21, 0), V(16.5, -16.21, 0)), False)
sketch4.addConstraint(Sketcher.Constraint("Coincident", 0, 2, 1, 1))
sketch4.addConstraint(Sketcher.Constraint("Coincident", 1, 2, 2, 1))
sketch4.addConstraint(Sketcher.Constraint("Tangent", 2, 2, 3, 1))
sketch4.addConstraint(Sketcher.Constraint("Coincident", 3, 2, 4, 1))
sketch4.addConstraint(Sketcher.Constraint("Coincident", 4, 2, 0, 1))
sketch4.addConstraint(Sketcher.Constraint("Coincident", 5, 2, 6, 1))
sketch4.addConstraint(Sketcher.Constraint("Tangent", 6, 2, 7, 1))
sketch4.addConstraint(Sketcher.Constraint("Coincident", 7, 2, 8, 1))
sketch4.addConstraint(Sketcher.Constraint("Coincident", 8, 2, 9, 1))
sketch4.addConstraint(Sketcher.Constraint("Coincident", 9, 2, 5, 1))
sketch4.addConstraint(Sketcher.Constraint("Horizontal", 0))
sketch4.addConstraint(Sketcher.Constraint("Vertical", 1))
sketch4.addConstraint(Sketcher.Constraint("Horizontal", 2))
sketch4.addConstraint(Sketcher.Constraint("Vertical", 4))
sketch4.addConstraint(Sketcher.Constraint("Vertical", 5))
sketch4.addConstraint(Sketcher.Constraint("Horizontal", 7))
sketch4.addConstraint(Sketcher.Constraint("Vertical", 8))
sketch4.addConstraint(Sketcher.Constraint("Horizontal", 9))
sketch4.addConstraint(Sketcher.Constraint("Equal", 3, 6))
sketch4.addConstraint(Sketcher.Constraint("Vertical", 3, 3, 6, 3))
sketch4.addConstraint(Sketcher.Constraint("Vertical", 4, 2, 5, 2))
sketch4.addConstraint(Sketcher.Constraint("Vertical", 1, 2, 7, 2))
sketch4.addConstraint(Sketcher.Constraint("Equal", 4, 5))
sketch4.addConstraint(Sketcher.Constraint("Radius", 3, Q("14.75 mm")))
sketch4.addConstraint(Sketcher.Constraint("DistanceY", 6, 3, 3, 3, Q("2 mm")))
sketch4.addConstraint(Sketcher.Constraint("DistanceX", 0, 1, 0, 2, Q("4.75 mm")))
sketch4.addConstraint(Sketcher.Constraint("DistanceY", 1, 2, 1, 1, Q("2.75 mm")))
sketch4.addConstraint(Sketcher.Constraint("DistanceX", 2, 2, 2, 1, Q("4.550056 mm")))
sketch4.addConstraint(Sketcher.Constraint("DistanceX", -1, 1, 3, 3, Q("16.70086 mm")))
sketch4.addConstraint(Sketcher.Constraint("DistanceY", -1, 1, 3, 3, Q("3.292292 mm")))
pad3 = body.newObject("PartDesign::Pad", "Pad002")
pad3.Profile = sketch4
pad3.Length = 5

sketch5 = body.newObject("Sketcher::SketchObject", "Sketch004")
sketch5.AttachmentSupport = (doc.getObject("XY_Plane"), [""])
sketch5.MapMode = "FlatFace"
sketch5.AttachmentOffset = App.Placement(V(0, 0, 5), App.Rotation())
sketch5.addGeometry(Part.Circle(V(20.5, -7.7, 0), V(0, 0, 1), 1.6), False)
sketch5.addGeometry(Part.Circle(V(20.5, 12.3, 0), V(0, 0, 1), 1.6), False)
sketch5.addConstraint(Sketcher.Constraint("Equal", 0, 1))
sketch5.addConstraint(Sketcher.Constraint("Vertical", 0, 3, 1, 3))
sketch5.addConstraint(Sketcher.Constraint("Diameter", 0, Q("3.2 mm")))
sketch5.addConstraint(Sketcher.Constraint("DistanceY", 0, 3, 1, 3, Q("20 mm")))
sketch5.addConstraint(Sketcher.Constraint("DistanceY", 0, 3, -1, 1, Q("7.707708 mm")))
sketch5.addConstraint(Sketcher.Constraint("DistanceX", -1, 1, 0, 3, Q("20.500916 mm")))
pocket2 = body.newObject("PartDesign::Pocket", "Pocket001")
pocket2.Profile = sketch5
pocket2.Length = 10

sketch6 = body.newObject("Sketcher::SketchObject", "Sketch005")
sketch6.AttachmentSupport = (doc.getObject("XY_Plane"), [""])
sketch6.MapMode = "FlatFace"
sketch6.AttachmentOffset = App.Placement(V(0, 0, 5), App.Rotation())
sketch6.addGeometry(Part.ArcOfCircle(Part.Circle(V(20.5, -7.7, 0), V(0, 0, 1), 1.6), math.radians(118), math.radians(242)), False)
sketch6.addGeometry(Part.ArcOfCircle(Part.Circle(V(19.3, -7.7, 0), V(0, 0, 1), 1.5), math.radians(70), math.radians(290)), False)
sketch6.addGeometry(Part.ArcOfCircle(Part.Circle(V(20.5, 12.3, 0), V(0, 0, 1), 1.6), math.radians(118), math.radians(242)), False)
sketch6.addGeometry(Part.ArcOfCircle(Part.Circle(V(19.3, 12.3, 0), V(0, 0, 1), 1.5), math.radians(70), math.radians(290)), False)
sketch6.addConstraint(Sketcher.Constraint("Coincident", 0, 1, 1, 1))
sketch6.addConstraint(Sketcher.Constraint("Coincident", 1, 2, 0, 2))
sketch6.addConstraint(Sketcher.Constraint("Coincident", 2, 1, 3, 1))
sketch6.addConstraint(Sketcher.Constraint("Coincident", 3, 2, 2, 2))
sketch6.addConstraint(Sketcher.Constraint("Equal", 0, 2))
sketch6.addConstraint(Sketcher.Constraint("Equal", 1, 3))
sketch6.addConstraint(Sketcher.Constraint("Horizontal", 0, 3, 1, 3))
sketch6.addConstraint(Sketcher.Constraint("Horizontal", 2, 3, 3, 3))
sketch6.addConstraint(Sketcher.Constraint("Vertical", 0, 3, 2, 3))
sketch6.addConstraint(Sketcher.Constraint("Vertical", 1, 3, 3, 3))
sketch6.addConstraint(Sketcher.Constraint("Radius", 0, Q("1.6 mm")))
sketch6.addConstraint(Sketcher.Constraint("Radius", 1, Q("1.5 mm")))
sketch6.addConstraint(Sketcher.Constraint("DistanceY", 0, 3, 2, 3, Q("20 mm")))
sketch6.addConstraint(Sketcher.Constraint("DistanceX", 1, 3, 0, 3, Q("1.25 mm")))
sketch6.addConstraint(Sketcher.Constraint("DistanceY", 0, 3, -1, 1, Q("7.707708 mm")))
sketch6.addConstraint(Sketcher.Constraint("DistanceX", -1, 1, 0, 3, Q("20.500916 mm")))
pad4 = body.newObject("PartDesign::Pad", "Pad003")
pad4.Profile = sketch6
pad4.Length = 5
pad4.Reversed = True

sketch7 = body.newObject("Sketcher::SketchObject", "Sketch006")
sketch7.AttachmentSupport = (doc.getObject("XY_Plane"), [""])
sketch7.MapMode = "FlatFace"
sketch7.addGeometry(Part.Circle(V(1.3, 2.4, 0), V(0, 0, 1), 1), False)
sketch7.addGeometry(Part.Circle(V(-12.7, 2.2, 0), V(0, 0, 1), 1), False)
sketch7.addConstraint(Sketcher.Constraint("Equal", 0, 1))
sketch7.addConstraint(Sketcher.Constraint("Diameter", 0, Q("2 mm")))
sketch7.addConstraint(Sketcher.Constraint("DistanceX", 1, 3, 0, 3, Q("14 mm")))
sketch7.addConstraint(Sketcher.Constraint("DistanceY", 1, 3, 0, 3, Q("0.124909 mm")))
sketch7.addConstraint(Sketcher.Constraint("DistanceX", -1, 1, 0, 3, Q("1.250916 mm")))
sketch7.addConstraint(Sketcher.Constraint("DistanceY", -1, 1, 0, 3, Q("2.354746 mm")))
pad5 = body.newObject("PartDesign::Pad", "Pad004")
pad5.Profile = sketch7
pad5.Length = 5

sketch8 = body.newObject("Sketcher::SketchObject", "Sketch007")
sketch8.AttachmentSupport = (doc.getObject("YZ_Plane"), [""])
sketch8.MapMode = "FlatFace"
sketch8.AttachmentOffset = App.Placement(V(0, 0, 16.500916), App.Rotation())
sketch8.addGeometry(Part.LineSegment(V(21, 0, 0), V(-16, 0, 0)), False)
sketch8.addGeometry(Part.LineSegment(V(-16, 0, 0), V(-16, 5, 0)), False)
sketch8.addGeometry(Part.LineSegment(V(-16, 5, 0), V(21, 5, 0)), False)
sketch8.addGeometry(Part.LineSegment(V(21, 5, 0), V(21, 0, 0)), False)
sketch8.addConstraint(Sketcher.Constraint("Coincident", 0, 2, 1, 1))
sketch8.addConstraint(Sketcher.Constraint("Coincident", 1, 2, 2, 1))
sketch8.addConstraint(Sketcher.Constraint("Coincident", 2, 2, 3, 1))
sketch8.addConstraint(Sketcher.Constraint("Coincident", 3, 2, 0, 1))
sketch8.addConstraint(Sketcher.Constraint("Horizontal", 0))
sketch8.addConstraint(Sketcher.Constraint("Vertical", 1))
sketch8.addConstraint(Sketcher.Constraint("Horizontal", 2))
sketch8.addConstraint(Sketcher.Constraint("Vertical", 3))
sketch8.addConstraint(Sketcher.Constraint("PointOnObject", 0, 2, -1))
sketch8.addConstraint(Sketcher.Constraint("DistanceX", 0, 2, 0, 1, Q("37 mm")))
sketch8.addConstraint(Sketcher.Constraint("DistanceY", 1, 1, 1, 2, Q("5 mm")))
sketch8.addConstraint(Sketcher.Constraint("DistanceX", 0, 2, -1, 1, Q("16.207708 mm")))
pocket3 = body.newObject("PartDesign::Pocket", "Pocket002")
pocket3.Profile = sketch8
pocket3.Type = "ThroughAll"

doc.recompute()
